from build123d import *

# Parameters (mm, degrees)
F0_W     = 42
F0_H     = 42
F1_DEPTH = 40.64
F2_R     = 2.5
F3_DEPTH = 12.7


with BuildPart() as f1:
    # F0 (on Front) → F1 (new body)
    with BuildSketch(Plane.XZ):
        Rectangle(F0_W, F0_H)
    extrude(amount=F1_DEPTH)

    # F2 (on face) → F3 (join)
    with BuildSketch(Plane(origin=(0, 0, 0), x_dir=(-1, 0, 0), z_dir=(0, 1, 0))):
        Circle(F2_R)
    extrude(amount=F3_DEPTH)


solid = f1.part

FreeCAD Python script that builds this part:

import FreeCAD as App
import Part
import Sketcher
from FreeCAD import Vector


def add_polygon(sketch, points):
    """Adds a closed chain of lines whose ends are joined by coincident constraints."""
    first, n = sketch.GeometryCount, len(points)
    for a, b in zip(points, points[1:] + points[:1]):
        sketch.addGeometry(Part.LineSegment(App.Vector(*a, 0), App.Vector(*b, 0)), False)
    for i in range(n):
        sketch.addConstraint(Sketcher.Constraint("Coincident", first + i, 2, first + (i + 1) % n, 1))

doc = App.newDocument("Part")
body = doc.addObject("PartDesign::Body", "Body")

sketch1 = body.newObject("Sketcher::SketchObject", "Sketch")
sketch1.AttachmentSupport = (doc.getObject("XZ_Plane"), [""])
sketch1.MapMode = "FlatFace"
add_polygon(sketch1, [(-21, 21), (-21, -21), (21, -21), (21, 21)])
sketch1.addConstraint([
    Sketcher.Constraint("Vertical", 0),
    Sketcher.Constraint("Horizontal", 1),
    Sketcher.Constraint("Vertical", 2),
    Sketcher.Constraint("Horizontal", 3),
    Sketcher.Constraint("Symmetric", 0, 2, 2, 2, -1, 1),
    Sketcher.Constraint("Equal", 3, 0),
    Sketcher.Constraint("DistanceX", 1, 1, 1, 2, 42.0),
])
pad1 = body.newObject("PartDesign::Pad", "Pad")
pad1.Profile = sketch1
pad1.Length = 40.64

sketch2 = body.newObject("Sketcher::SketchObject", "Sketch001")
sketch2.AttachmentSupport = (doc.getObject("XZ_Plane"), [""])
sketch2.MapMode = "FlatFace"
sketch2.addGeometry(Part.Circle(Vector(0, 0, 0), Vector(0, 0, 1), 2.5), False)
sketch2.addConstraint([
    Sketcher.Constraint("Coincident", 0, 3, -1, 1),
    Sketcher.Constraint("Diameter", 0, 5.0),
])
pad2 = body.newObject("PartDesign::Pad", "Pad001")
pad2.Profile = sketch2
pad2.Length = 12.7
pad2.Reversed = True

doc.recompute()
